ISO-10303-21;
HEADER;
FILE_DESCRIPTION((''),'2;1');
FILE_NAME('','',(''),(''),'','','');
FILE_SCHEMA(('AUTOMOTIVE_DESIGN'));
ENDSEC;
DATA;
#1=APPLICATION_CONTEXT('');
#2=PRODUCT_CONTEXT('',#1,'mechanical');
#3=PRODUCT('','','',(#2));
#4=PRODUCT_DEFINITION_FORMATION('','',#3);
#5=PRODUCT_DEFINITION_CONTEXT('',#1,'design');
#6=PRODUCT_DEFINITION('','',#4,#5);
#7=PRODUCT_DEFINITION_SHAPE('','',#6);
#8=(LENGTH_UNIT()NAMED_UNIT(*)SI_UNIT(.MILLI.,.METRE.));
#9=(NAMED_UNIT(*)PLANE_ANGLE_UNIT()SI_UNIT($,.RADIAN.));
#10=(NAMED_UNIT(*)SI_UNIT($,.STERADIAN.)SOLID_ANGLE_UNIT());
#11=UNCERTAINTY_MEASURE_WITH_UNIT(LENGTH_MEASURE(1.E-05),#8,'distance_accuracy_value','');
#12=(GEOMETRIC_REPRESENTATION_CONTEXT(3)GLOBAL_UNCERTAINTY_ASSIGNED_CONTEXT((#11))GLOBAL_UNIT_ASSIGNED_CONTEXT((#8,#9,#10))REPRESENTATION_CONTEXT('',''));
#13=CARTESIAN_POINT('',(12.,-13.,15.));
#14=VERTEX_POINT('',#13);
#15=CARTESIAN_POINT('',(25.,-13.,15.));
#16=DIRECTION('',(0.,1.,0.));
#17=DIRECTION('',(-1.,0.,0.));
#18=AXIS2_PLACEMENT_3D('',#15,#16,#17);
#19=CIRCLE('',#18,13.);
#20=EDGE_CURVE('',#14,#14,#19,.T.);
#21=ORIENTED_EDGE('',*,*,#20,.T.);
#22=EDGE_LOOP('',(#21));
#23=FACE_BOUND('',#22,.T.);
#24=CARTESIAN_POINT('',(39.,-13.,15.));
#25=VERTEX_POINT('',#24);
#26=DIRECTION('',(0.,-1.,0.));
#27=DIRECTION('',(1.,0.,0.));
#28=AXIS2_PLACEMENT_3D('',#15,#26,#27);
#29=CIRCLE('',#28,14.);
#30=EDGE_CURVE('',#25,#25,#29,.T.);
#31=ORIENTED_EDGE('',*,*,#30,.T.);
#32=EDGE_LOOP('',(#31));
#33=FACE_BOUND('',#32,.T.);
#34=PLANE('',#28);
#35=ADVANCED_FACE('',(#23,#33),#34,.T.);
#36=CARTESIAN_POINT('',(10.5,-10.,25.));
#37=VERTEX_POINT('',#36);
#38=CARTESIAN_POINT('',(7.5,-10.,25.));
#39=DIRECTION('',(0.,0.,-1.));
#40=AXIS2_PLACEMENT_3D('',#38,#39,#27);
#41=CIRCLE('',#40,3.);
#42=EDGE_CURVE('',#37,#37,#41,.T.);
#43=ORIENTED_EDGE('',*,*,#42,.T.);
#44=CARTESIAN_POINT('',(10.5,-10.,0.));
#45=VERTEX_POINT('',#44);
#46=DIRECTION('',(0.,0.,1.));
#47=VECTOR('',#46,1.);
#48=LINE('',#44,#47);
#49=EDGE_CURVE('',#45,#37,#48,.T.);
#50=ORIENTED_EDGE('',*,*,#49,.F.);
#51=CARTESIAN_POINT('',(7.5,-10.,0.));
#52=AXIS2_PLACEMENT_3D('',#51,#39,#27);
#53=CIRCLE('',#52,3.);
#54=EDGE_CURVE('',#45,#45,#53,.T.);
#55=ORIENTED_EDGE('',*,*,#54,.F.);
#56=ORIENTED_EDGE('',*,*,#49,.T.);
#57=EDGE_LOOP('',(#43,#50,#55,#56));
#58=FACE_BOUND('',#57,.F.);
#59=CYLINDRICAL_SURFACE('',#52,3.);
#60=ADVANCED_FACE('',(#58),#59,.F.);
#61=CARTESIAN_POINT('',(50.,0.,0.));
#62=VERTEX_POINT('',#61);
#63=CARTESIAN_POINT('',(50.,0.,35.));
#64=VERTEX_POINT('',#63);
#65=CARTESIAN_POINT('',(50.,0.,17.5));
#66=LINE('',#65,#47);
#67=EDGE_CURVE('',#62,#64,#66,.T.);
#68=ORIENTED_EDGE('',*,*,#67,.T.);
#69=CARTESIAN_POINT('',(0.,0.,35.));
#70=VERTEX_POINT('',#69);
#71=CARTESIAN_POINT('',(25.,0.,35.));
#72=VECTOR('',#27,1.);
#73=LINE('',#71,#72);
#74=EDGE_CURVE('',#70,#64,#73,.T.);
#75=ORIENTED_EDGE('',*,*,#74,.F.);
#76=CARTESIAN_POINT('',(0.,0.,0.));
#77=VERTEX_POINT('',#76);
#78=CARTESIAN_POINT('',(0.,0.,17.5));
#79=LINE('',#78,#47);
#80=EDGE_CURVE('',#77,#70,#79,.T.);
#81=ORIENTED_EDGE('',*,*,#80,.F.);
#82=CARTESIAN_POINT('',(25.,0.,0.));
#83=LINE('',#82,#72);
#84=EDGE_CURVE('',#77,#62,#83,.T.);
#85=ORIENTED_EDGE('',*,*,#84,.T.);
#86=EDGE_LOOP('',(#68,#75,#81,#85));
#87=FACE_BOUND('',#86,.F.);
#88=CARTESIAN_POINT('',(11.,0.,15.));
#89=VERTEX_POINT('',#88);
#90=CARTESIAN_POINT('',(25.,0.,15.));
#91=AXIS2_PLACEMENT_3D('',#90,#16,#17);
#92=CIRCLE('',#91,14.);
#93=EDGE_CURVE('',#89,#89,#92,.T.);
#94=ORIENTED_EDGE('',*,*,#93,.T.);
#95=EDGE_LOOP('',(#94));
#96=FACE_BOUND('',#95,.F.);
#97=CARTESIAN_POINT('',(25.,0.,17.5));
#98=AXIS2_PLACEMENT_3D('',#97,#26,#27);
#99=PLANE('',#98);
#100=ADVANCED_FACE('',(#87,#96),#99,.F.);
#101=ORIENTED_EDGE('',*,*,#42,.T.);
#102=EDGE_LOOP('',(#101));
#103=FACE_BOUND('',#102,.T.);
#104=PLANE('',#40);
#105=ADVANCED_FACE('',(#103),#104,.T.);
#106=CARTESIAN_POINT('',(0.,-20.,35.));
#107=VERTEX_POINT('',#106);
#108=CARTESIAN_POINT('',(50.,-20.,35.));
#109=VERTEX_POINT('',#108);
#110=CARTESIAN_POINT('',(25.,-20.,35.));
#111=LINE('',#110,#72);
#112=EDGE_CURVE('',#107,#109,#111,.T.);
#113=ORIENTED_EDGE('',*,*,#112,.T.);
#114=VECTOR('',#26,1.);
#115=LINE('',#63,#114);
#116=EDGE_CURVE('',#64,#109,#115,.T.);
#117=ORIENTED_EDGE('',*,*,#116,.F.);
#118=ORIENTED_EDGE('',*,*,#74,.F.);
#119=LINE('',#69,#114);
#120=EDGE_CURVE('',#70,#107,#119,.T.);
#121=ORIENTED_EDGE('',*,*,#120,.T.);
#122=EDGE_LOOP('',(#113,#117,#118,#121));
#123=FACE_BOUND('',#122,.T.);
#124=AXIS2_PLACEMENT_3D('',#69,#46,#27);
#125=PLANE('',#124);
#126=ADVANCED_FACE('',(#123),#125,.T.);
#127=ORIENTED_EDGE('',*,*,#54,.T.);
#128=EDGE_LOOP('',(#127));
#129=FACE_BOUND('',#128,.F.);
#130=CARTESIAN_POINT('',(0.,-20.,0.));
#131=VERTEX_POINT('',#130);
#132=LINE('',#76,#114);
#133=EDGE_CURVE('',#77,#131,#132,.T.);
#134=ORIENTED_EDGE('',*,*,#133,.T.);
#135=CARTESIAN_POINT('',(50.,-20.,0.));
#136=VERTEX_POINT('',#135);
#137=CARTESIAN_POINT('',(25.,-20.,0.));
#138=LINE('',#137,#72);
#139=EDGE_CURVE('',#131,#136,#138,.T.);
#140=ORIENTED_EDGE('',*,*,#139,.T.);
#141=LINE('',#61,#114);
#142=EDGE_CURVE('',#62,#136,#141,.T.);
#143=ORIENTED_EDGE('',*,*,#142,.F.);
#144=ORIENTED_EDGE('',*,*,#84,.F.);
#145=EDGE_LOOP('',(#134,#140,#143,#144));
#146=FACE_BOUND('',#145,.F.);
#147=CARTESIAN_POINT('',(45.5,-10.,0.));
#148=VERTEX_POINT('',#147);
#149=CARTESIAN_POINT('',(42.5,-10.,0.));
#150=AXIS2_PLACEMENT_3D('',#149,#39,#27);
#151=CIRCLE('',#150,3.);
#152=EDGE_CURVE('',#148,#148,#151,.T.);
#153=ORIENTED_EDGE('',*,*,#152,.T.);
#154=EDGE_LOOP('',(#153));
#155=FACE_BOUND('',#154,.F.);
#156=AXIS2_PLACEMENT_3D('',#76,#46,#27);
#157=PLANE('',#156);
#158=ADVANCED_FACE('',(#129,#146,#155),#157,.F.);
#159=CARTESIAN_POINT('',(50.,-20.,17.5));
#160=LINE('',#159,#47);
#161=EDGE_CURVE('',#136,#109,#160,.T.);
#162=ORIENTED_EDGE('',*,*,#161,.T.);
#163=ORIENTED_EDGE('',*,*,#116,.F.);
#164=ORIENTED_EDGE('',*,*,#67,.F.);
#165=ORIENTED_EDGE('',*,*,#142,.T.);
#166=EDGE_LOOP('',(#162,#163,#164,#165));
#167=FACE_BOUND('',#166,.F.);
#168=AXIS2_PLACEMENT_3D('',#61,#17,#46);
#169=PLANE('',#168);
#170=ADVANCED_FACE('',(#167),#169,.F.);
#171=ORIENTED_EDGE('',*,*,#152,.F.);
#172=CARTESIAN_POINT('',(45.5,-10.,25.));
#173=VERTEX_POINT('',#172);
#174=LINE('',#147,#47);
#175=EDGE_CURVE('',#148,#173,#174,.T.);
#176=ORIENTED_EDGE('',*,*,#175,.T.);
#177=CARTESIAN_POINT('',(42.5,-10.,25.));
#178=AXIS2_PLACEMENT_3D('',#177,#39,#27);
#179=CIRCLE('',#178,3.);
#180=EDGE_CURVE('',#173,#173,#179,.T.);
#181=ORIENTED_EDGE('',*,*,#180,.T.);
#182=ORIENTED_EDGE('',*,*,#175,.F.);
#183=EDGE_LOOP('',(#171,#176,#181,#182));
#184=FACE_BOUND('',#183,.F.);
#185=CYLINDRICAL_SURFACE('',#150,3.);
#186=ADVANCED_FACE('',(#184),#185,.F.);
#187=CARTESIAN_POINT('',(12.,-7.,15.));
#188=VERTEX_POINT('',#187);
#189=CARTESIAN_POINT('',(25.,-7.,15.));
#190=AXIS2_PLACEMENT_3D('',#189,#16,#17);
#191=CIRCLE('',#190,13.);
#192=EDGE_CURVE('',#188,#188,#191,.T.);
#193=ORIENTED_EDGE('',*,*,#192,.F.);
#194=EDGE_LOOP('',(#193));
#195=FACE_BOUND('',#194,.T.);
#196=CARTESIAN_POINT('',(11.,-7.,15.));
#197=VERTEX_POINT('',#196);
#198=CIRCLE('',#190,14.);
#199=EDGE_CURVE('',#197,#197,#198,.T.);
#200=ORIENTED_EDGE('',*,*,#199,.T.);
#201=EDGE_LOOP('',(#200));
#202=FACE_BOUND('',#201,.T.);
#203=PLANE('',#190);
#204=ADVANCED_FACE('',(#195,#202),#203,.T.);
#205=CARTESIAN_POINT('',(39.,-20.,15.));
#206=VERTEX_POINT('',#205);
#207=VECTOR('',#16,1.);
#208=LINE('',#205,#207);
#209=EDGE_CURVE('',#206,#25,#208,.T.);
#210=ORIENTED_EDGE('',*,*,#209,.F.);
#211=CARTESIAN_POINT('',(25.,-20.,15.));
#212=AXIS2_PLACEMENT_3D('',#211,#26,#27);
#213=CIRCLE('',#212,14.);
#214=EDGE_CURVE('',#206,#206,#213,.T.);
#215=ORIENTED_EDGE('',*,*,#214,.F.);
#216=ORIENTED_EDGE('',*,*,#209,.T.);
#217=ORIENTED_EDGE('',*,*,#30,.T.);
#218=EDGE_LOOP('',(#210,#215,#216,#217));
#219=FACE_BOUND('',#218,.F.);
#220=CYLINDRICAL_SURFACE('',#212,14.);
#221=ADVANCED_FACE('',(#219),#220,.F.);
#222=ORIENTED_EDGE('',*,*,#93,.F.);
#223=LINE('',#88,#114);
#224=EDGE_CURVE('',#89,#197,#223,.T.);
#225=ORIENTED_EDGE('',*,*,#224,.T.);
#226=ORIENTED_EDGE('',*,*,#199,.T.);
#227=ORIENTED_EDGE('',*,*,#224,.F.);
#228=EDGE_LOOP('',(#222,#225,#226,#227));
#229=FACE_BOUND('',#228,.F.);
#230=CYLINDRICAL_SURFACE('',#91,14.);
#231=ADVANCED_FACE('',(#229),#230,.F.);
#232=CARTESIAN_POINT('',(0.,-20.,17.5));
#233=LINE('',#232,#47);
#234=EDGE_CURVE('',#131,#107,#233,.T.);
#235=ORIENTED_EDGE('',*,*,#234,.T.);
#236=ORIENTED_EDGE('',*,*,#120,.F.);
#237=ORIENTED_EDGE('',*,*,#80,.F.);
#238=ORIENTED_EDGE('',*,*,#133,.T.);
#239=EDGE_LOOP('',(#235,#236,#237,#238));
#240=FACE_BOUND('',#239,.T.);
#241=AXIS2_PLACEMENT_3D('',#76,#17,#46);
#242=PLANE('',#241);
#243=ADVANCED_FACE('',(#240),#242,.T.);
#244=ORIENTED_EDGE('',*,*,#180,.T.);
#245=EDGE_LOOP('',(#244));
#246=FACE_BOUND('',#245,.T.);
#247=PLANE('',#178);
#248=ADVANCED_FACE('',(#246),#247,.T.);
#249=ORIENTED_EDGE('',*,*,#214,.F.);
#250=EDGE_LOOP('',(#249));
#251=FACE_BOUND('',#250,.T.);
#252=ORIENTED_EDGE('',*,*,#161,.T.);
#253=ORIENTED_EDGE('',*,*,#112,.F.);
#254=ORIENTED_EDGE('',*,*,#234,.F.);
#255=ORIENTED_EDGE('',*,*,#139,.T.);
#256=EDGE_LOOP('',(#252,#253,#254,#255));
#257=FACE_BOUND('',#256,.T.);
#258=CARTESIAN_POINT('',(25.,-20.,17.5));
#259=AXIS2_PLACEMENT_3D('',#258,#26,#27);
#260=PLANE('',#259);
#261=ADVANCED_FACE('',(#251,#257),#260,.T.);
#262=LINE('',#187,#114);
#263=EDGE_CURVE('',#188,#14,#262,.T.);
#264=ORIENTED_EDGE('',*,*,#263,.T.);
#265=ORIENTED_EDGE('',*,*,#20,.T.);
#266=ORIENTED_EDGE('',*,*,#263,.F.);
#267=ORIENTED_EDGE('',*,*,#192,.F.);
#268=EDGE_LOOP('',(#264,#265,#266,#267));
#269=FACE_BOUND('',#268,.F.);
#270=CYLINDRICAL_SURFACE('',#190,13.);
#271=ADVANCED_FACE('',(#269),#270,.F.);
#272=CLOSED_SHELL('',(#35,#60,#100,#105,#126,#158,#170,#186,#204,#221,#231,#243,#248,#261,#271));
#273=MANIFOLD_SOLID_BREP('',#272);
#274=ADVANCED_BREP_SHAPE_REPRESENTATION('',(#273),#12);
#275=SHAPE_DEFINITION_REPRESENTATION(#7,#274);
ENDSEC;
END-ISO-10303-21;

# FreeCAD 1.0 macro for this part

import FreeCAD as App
import Part
import Sketcher

doc = App.newDocument("Part")
body = doc.addObject("PartDesign::Body", "Body")

sketch1 = body.newObject("Sketcher::SketchObject", "Sketch")
sketch1.AttachmentSupport = (doc.getObject("XZ_Plane"), [""])
sketch1.MapMode = "FlatFace"
sketch1.addGeometry([
    Part.LineSegment(App.Vector(0, 35, 0), App.Vector(0, 0, 0)),
    Part.LineSegment(App.Vector(0, 0, 0), App.Vector(50, 0, 0)),
    Part.LineSegment(App.Vector(50, 0, 0), App.Vector(50, 35, 0)),
    Part.LineSegment(App.Vector(50, 35, 0), App.Vector(0, 35, 0)),
], False)
sketch1.addConstraint([
    Sketcher.Constraint("Coincident", 0, 2, 1, 1),
    Sketcher.Constraint("Coincident", 1, 2, 2, 1),
    Sketcher.Constraint("Coincident", 2, 2, 3, 1),
    Sketcher.Constraint("Coincident", 3, 2, 0, 1),
    Sketcher.Constraint("Vertical", 0),
    Sketcher.Constraint("Horizontal", 1),
    Sketcher.Constraint("Vertical", 2),
    Sketcher.Constraint("Horizontal", 3),
    Sketcher.Constraint("Coincident", 0, 2, -1, 1),
    Sketcher.Constraint("DistanceX", 1, 1, 1, 2, 50.0),
    Sketcher.Constraint("DistanceY", 0, 2, 0, 1, 35.0),
])
pad1 = body.newObject("PartDesign::Pad", "Pad")
pad1.Profile = sketch1
pad1.Length = 20

sketch2 = body.newObject("Sketcher::SketchObject", "Sketch001")
sketch2.AttachmentSupport = (doc.getObject("XZ_Plane"), [""])
sketch2.MapMode = "FlatFace"
sketch2.AttachmentOffset = App.Placement(App.Vector(0, 0, 20), App.Rotation())
sketch2.addGeometry(Part.Circle(App.Vector(25, 15, 0), App.Vector(0, 0, 1), 14), False)
sketch2.addConstraint([
    Sketcher.Constraint("Diameter", 0, 28.0),
    Sketcher.Constraint("DistanceX", -1, 1, 0, 3, 25.0),
    Sketcher.Constraint("DistanceY", -1, 1, 0, 3, 15.0),
])
pocket1 = body.newObject("PartDesign::Pocket", "Pocket")
pocket1.Profile = sketch2
pocket1.Length = 7

sketch3 = body.newObject("Sketcher::SketchObject", "Sketch002")
sketch3.AttachmentSupport = (doc.getObject("XZ_Plane"), [""])
sketch3.MapMode = "FlatFace"
sketch3.addGeometry(Part.Circle(App.Vector(25, 15, 0), App.Vector(0, 0, 1), 14), False)
sketch3.addConstraint([
    Sketcher.Constraint("Diameter", 0, 28.0),
    Sketcher.Constraint("DistanceX", -1, 1, 0, 3, 25.0),
    Sketcher.Constraint("DistanceY", -1, 1, 0, 3, 15.0),
])
pocket2 = body.newObject("PartDesign::Pocket", "Pocket001")
pocket2.Profile = sketch3
pocket2.Length = 7
pocket2.Reversed = True

sketch4 = body.newObject("Sketcher::SketchObject", "Sketch003")
sketch4.AttachmentSupport = (doc.getObject("XZ_Plane"), [""])
sketch4.MapMode = "FlatFace"
sketch4.AttachmentOffset = App.Placement(App.Vector(0, 0, 7), App.Rotation())
sketch4.addGeometry(Part.Circle(App.Vector(25, 15, 0), App.Vector(0, 0, 1), 13), False)
sketch4.addConstraint([
    Sketcher.Constraint("Diameter", 0, 26.0),
    Sketcher.Constraint("DistanceX", -1, 1, 0, 3, 25.0),
    Sketcher.Constraint("DistanceY", -1, 1, 0, 3, 15.0),
])
pocket3 = body.newObject("PartDesign::Pocket", "Pocket002")
pocket3.Profile = sketch4
pocket3.Type = "ThroughAll"
pocket3.Reversed = True

sketch5 = body.newObject("Sketcher::SketchObject", "Sketch004")
sketch5.AttachmentSupport = (doc.getObject("XY_Plane"), [""])
sketch5.MapMode = "FlatFace"
sketch5.addGeometry([
    Part.Circle(App.Vector(7.5, -10, 0), App.Vector(0, 0, 1), 3),
    Part.Circle(App.Vector(42.5, -10, 0), App.Vector(0, 0, 1), 3),
], False)
sketch5.addConstraint([
    Sketcher.Constraint("Equal", 0, 1),
    Sketcher.Constraint("Horizontal", 0, 3, 1, 3),
    Sketcher.Constraint("Diameter", 0, 6.0),
    Sketcher.Constraint("DistanceY", 0, 3, -1, 1, 10.0),
    Sketcher.Constraint("DistanceX", 0, 3, 1, 3, 35.0),
    Sketcher.Constraint("DistanceX", -1, 1, 0, 3, 7.5),
])
pocket4 = body.newObject("PartDesign::Pocket", "Pocket003")
pocket4.Profile = sketch5
pocket4.Length = 25
pocket4.Reversed = True

doc.recompute()
